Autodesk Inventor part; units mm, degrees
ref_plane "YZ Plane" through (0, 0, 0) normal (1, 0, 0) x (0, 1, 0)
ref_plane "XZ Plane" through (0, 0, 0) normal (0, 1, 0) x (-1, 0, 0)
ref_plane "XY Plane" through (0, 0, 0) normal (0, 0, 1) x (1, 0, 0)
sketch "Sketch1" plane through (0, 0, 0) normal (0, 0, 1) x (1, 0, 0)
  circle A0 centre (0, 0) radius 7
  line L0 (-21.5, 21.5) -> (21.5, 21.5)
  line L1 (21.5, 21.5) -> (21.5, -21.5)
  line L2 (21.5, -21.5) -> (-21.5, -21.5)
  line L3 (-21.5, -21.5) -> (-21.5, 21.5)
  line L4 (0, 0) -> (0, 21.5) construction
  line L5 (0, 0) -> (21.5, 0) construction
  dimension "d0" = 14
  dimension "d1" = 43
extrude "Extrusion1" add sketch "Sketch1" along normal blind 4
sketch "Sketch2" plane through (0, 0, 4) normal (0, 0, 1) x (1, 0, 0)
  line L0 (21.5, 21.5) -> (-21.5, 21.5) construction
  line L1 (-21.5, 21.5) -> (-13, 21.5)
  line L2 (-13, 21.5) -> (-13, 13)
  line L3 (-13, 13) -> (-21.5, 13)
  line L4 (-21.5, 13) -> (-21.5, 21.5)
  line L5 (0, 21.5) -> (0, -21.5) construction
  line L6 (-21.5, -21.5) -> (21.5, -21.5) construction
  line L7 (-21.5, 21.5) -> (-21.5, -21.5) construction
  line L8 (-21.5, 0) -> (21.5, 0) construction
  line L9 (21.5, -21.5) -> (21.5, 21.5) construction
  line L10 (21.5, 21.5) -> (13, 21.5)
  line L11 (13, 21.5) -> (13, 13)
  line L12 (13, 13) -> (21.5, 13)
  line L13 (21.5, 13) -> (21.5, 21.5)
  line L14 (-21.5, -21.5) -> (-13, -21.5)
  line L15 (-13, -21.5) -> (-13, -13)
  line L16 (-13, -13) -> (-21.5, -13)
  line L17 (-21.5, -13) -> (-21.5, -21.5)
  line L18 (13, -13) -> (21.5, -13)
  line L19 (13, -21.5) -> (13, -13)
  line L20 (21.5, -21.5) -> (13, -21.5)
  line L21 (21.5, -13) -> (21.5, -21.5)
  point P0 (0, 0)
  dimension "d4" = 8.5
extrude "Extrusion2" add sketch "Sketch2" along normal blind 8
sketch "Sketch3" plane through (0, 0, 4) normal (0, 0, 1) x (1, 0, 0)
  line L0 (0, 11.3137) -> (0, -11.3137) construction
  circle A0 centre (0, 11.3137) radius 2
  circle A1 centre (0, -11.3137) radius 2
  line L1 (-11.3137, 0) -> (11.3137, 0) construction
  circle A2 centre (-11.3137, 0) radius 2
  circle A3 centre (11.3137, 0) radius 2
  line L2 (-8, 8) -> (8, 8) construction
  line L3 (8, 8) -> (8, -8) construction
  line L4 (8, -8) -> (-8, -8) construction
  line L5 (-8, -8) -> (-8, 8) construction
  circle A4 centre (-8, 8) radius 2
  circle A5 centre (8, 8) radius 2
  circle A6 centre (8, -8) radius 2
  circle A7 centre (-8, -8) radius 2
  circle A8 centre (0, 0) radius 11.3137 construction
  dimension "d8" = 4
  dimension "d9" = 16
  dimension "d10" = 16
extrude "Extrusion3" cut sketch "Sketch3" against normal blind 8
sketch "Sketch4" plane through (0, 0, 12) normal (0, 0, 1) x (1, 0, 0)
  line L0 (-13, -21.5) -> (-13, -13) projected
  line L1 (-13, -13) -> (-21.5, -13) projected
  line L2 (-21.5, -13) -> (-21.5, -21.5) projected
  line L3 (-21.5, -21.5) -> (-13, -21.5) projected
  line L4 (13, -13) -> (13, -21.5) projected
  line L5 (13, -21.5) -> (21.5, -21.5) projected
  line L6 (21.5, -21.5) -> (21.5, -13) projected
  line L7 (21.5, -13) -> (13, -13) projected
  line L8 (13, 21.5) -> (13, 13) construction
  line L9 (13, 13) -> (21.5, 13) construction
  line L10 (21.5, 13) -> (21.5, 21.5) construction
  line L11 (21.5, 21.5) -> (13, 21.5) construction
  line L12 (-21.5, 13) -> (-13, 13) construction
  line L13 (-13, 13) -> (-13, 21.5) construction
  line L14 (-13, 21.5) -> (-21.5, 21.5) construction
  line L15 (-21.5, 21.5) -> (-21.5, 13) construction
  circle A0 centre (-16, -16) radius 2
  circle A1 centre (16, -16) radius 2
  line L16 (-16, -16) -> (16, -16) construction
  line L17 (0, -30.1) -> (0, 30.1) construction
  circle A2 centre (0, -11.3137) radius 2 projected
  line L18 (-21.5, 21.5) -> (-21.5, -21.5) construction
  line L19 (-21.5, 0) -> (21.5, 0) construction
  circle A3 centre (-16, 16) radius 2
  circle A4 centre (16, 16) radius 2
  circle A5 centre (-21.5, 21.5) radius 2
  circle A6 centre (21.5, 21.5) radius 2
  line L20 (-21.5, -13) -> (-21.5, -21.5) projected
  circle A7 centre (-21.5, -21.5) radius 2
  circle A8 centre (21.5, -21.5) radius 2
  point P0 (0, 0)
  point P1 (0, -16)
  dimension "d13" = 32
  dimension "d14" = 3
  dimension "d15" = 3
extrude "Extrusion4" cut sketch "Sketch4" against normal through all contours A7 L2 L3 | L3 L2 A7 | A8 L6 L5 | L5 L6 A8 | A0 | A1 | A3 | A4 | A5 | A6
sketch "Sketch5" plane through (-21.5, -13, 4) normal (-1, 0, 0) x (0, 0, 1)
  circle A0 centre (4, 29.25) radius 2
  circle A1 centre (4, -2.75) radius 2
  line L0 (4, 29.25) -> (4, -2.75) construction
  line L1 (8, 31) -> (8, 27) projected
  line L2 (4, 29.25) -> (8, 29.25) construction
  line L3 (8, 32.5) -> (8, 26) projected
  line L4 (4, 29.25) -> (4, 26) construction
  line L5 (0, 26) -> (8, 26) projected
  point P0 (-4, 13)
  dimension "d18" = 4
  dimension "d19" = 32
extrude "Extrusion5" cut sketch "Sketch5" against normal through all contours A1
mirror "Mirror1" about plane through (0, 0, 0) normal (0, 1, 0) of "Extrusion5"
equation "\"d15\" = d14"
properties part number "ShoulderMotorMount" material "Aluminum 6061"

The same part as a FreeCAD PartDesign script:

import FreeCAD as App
import Part
import Sketcher
Q = App.Units.Quantity


def add_polygon(sketch, points):
    """Adds a closed chain of lines whose ends are joined by coincident constraints."""
    first, n = sketch.GeometryCount, len(points)
    for a, b in zip(points, points[1:] + points[:1]):
        sketch.addGeometry(Part.LineSegment(App.Vector(*a, 0), App.Vector(*b, 0)), False)
    for i in range(n):
        sketch.addConstraint(Sketcher.Constraint("Coincident", first + i, 2, first + (i + 1) % n, 1))

doc = App.newDocument("Part")
body = doc.addObject("PartDesign::Body", "Body")

sketch1 = body.newObject("Sketcher::SketchObject", "Sketch")
sketch1.AttachmentSupport = (doc.getObject("XY_Plane"), [""])
sketch1.MapMode = "FlatFace"
add_polygon(sketch1, [(22, 22), (-22, 22), (-22, -22), (22, -22)])
sketch1.addGeometry(Part.Circle(App.Vector(0, 0, 0), App.Vector(0, 0, 1), 7), False)
sketch1.addConstraint([
    Sketcher.Constraint("Horizontal", 0),
    Sketcher.Constraint("Vertical", 1),
    Sketcher.Constraint("Horizontal", 2),
    Sketcher.Constraint("Vertical", 3),
    Sketcher.Constraint("Coincident", 4, 3, -1, 1),
    Sketcher.Constraint("Symmetric", 0, 2, 2, 2, -1, 1),
    Sketcher.Constraint("Equal", 2, 1),
    Sketcher.Constraint("Diameter", 4, Q("14 mm")),
    Sketcher.Constraint("DistanceX", 0, 2, 0, 1, Q("43 mm")),
])
pad1 = body.newObject("PartDesign::Pad", "Pad")
pad1.Profile = sketch1
pad1.Length = 4

sketch2 = body.newObject("Sketcher::SketchObject", "Sketch001")
sketch2.AttachmentSupport = (doc.getObject("XY_Plane"), [""])
sketch2.MapMode = "FlatFace"
sketch2.AttachmentOffset = App.Placement(App.Vector(0, 0, 4), App.Rotation())
add_polygon(sketch2, [(-13, 22), (-22, 22), (-22, 13), (-13, 13)])
add_polygon(sketch2, [(22, 13), (22, 22), (13, 22), (13, 13)])
add_polygon(sketch2, [(-22, -13), (-22, -22), (-13, -22), (-13, -13)])
add_polygon(sketch2, [(22, -13), (13, -13), (13, -22), (22, -22)])
sketch2.addConstraint([
    Sketcher.Constraint("Horizontal", 0),
    Sketcher.Constraint("Vertical", 1),
    Sketcher.Constraint("Horizontal", 2),
    Sketcher.Constraint("Vertical", 3),
    Sketcher.Constraint("Vertical", 4),
    Sketcher.Constraint("Horizontal", 5),
    Sketcher.Constraint("Vertical", 6),
    Sketcher.Constraint("Horizontal", 7),
    Sketcher.Constraint("Vertical", 8),
    Sketcher.Constraint("Horizontal", 9),
    Sketcher.Constraint("Vertical", 10),
    Sketcher.Constraint("Horizontal", 11),
    Sketcher.Constraint("Horizontal", 12),
    Sketcher.Constraint("Vertical", 13),
    Sketcher.Constraint("Horizontal", 14),
    Sketcher.Constraint("Vertical", 15),
    Sketcher.Constraint("Symmetric", 4, 2, 8, 2, -1, 1),
    Sketcher.Constraint("Symmetric", 6, 2, 10, 2, -1, 1),
    Sketcher.Constraint("Symmetric", 2, 2, 12, 2, -1, 1),
    Sketcher.Constraint("Symmetric", 0, 2, 14, 2, -1, 1),
    Sketcher.Constraint("Symmetric", 0, 2, 4, 2, -2),
    Sketcher.Constraint("Symmetric", 2, 2, 6, 2, -2),
    Sketcher.Constraint("Equal", 14, 1),
    Sketcher.Constraint("DistanceX", 0, 2, 0, 1, Q("8.5 mm")),
    Sketcher.Constraint("DistanceY", -1, 1, 1, 2, Q("13 mm")),
    Sketcher.Constraint("DistanceX", 2, 2, -1, 1, Q("13 mm")),
])
pad2 = body.newObject("PartDesign::Pad", "Pad001")
pad2.Profile = sketch2
pad2.Length = 8

sketch3 = body.newObject("Sketcher::SketchObject", "Sketch002")
sketch3.AttachmentSupport = (doc.getObject("XY_Plane"), [""])
sketch3.MapMode = "FlatFace"
sketch3.AttachmentOffset = App.Placement(App.Vector(0, 0, 4), App.Rotation())
sketch3.addGeometry([
    Part.Circle(App.Vector(0, 11.3, 0), App.Vector(0, 0, 1), 2),
    Part.Circle(App.Vector(0, -11.3, 0), App.Vector(0, 0, 1), 2),
    Part.Circle(App.Vector(-11.3, 0, 0), App.Vector(0, 0, 1), 2),
    Part.Circle(App.Vector(11.3, 0, 0), App.Vector(0, 0, 1), 2),
    Part.Circle(App.Vector(-8, 8, 0), App.Vector(0, 0, 1), 2),
    Part.Circle(App.Vector(8, 8, 0), App.Vector(0, 0, 1), 2),
    Part.Circle(App.Vector(8, -8, 0), App.Vector(0, 0, 1), 2),
    Part.Circle(App.Vector(-8, -8, 0), App.Vector(0, 0, 1), 2),
], False)
sketch3.addConstraint([
    Sketcher.Constraint("Equal", 0, 1),
    Sketcher.Constraint("Equal", 1, 2),
    Sketcher.Constraint("Equal", 2, 3),
    Sketcher.Constraint("Equal", 3, 4),
    Sketcher.Constraint("Equal", 4, 5),
    Sketcher.Constraint("Equal", 5, 6),
    Sketcher.Constraint("Equal", 6, 7),
    Sketcher.Constraint("Symmetric", 0, 3, 1, 3, -1, 1),
    Sketcher.Constraint("Symmetric", 2, 3, 3, 3, -1, 1),
    Sketcher.Constraint("Symmetric", 4, 3, 6, 3, -1, 1),
    Sketcher.Constraint("Symmetric", 5, 3, 7, 3, -1, 1),
    Sketcher.Constraint("Symmetric", 4, 3, 5, 3, -2),
    Sketcher.Constraint("PointOnObject", 0, 3, -2),
    Sketcher.Constraint("PointOnObject", 2, 3, -1),
    Sketcher.Constraint("Diameter", 0, Q("4 mm")),
    Sketcher.Constraint("DistanceX", 4, 3, 5, 3, Q("16 mm")),
    Sketcher.Constraint("DistanceY", 6, 3, 5, 3, Q("16 mm")),
    Sketcher.Constraint("DistanceY", -1, 1, 0, 3, Q("11.3137 mm")),
    Sketcher.Constraint("DistanceX", 2, 3, -1, 1, Q("11.3137 mm")),
])
pocket1 = body.newObject("PartDesign::Pocket", "Pocket")
pocket1.Profile = sketch3
pocket1.Length = 8

sketch4 = body.newObject("Sketcher::SketchObject", "Sketch003")
sketch4.AttachmentSupport = (doc.getObject("XY_Plane"), [""])
sketch4.MapMode = "FlatFace"
sketch4.AttachmentOffset = App.Placement(App.Vector(0, 0, 12), App.Rotation())
sketch4.addGeometry([
    Part.Circle(App.Vector(-21.5, -21.5, 0), App.Vector(0, 0, 1), 2),
    Part.Circle(App.Vector(21.5, -21.5, 0), App.Vector(0, 0, 1), 2),
    Part.Circle(App.Vector(-16, -16, 0), App.Vector(0, 0, 1), 2),
    Part.Circle(App.Vector(16, -16, 0), App.Vector(0, 0, 1), 2),
    Part.Circle(App.Vector(-16, 16, 0), App.Vector(0, 0, 1), 2),
    Part.Circle(App.Vector(16, 16, 0), App.Vector(0, 0, 1), 2),
    Part.Circle(App.Vector(-21.5, 21.5, 0), App.Vector(0, 0, 1), 2),
    Part.Circle(App.Vector(21.5, 21.5, 0), App.Vector(0, 0, 1), 2),
], False)
sketch4.addConstraint([
    Sketcher.Constraint("Equal", 0, 1),
    Sketcher.Constraint("Equal", 1, 2),
    Sketcher.Constraint("Equal", 2, 3),
    Sketcher.Constraint("Equal", 3, 4),
    Sketcher.Constraint("Equal", 4, 5),
    Sketcher.Constraint("Equal", 5, 6),
    Sketcher.Constraint("Equal", 6, 7),
    Sketcher.Constraint("Symmetric", 3, 3, 4, 3, -1, 1),
    Sketcher.Constraint("Symmetric", 2, 3, 5, 3, -1, 1),
    Sketcher.Constraint("Symmetric", 1, 3, 6, 3, -1, 1),
    Sketcher.Constraint("Symmetric", 0, 3, 7, 3, -1, 1),
    Sketcher.Constraint("Symmetric", 0, 3, 1, 3, -2),
    Sketcher.Constraint("Symmetric", 2, 3, 3, 3, -2),
    Sketcher.Constraint("Diameter", 0, Q("4 mm")),
    Sketcher.Constraint("DistanceX", 2, 3, 3, 3, Q("32 mm")),
    Sketcher.Constraint("DistanceY", 2, 3, 4, 3, Q("32 mm")),
    Sketcher.Constraint("DistanceX", 0, 3, 1, 3, Q("43 mm")),
    Sketcher.Constraint("DistanceY", 0, 3, 6, 3, Q("43 mm")),
])
pocket2 = body.newObject("PartDesign::Pocket", "Pocket001")
pocket2.Profile = sketch4
pocket2.Type = "ThroughAll"

sketch5 = body.newObject("Sketcher::SketchObject", "Sketch004")
sketch5.AttachmentSupport = (doc.getObject("YZ_Plane"), [""])
sketch5.MapMode = "FlatFace"
sketch5.AttachmentOffset = App.Placement(App.Vector(0, 0, -21.5), App.Rotation())
sketch5.addGeometry(Part.Circle(App.Vector(-15.8, 8, 0), App.Vector(0, 0, 1), 2), False)
sketch5.addConstraint([
    Sketcher.Constraint("Diameter", 0, Q("4 mm")),
    Sketcher.Constraint("DistanceY", -1, 1, 0, 3, Q("8 mm")),
    Sketcher.Constraint("DistanceX", 0, 3, -1, 1, Q("15.75 mm")),
])
pocket3 = body.newObject("PartDesign::Pocket", "Pocket002")
pocket3.Profile = sketch5
pocket3.Type = "ThroughAll"
pocket3.Reversed = True
doc.recompute()

mirrored = body.newObject("PartDesign::Mirrored", "Mirrored")
mirrored.Originals = [pocket3]
mirrored.MirrorPlane = (doc.getObject("XZ_Plane"), [""])
body.Tip = mirrored

doc.recompute()
